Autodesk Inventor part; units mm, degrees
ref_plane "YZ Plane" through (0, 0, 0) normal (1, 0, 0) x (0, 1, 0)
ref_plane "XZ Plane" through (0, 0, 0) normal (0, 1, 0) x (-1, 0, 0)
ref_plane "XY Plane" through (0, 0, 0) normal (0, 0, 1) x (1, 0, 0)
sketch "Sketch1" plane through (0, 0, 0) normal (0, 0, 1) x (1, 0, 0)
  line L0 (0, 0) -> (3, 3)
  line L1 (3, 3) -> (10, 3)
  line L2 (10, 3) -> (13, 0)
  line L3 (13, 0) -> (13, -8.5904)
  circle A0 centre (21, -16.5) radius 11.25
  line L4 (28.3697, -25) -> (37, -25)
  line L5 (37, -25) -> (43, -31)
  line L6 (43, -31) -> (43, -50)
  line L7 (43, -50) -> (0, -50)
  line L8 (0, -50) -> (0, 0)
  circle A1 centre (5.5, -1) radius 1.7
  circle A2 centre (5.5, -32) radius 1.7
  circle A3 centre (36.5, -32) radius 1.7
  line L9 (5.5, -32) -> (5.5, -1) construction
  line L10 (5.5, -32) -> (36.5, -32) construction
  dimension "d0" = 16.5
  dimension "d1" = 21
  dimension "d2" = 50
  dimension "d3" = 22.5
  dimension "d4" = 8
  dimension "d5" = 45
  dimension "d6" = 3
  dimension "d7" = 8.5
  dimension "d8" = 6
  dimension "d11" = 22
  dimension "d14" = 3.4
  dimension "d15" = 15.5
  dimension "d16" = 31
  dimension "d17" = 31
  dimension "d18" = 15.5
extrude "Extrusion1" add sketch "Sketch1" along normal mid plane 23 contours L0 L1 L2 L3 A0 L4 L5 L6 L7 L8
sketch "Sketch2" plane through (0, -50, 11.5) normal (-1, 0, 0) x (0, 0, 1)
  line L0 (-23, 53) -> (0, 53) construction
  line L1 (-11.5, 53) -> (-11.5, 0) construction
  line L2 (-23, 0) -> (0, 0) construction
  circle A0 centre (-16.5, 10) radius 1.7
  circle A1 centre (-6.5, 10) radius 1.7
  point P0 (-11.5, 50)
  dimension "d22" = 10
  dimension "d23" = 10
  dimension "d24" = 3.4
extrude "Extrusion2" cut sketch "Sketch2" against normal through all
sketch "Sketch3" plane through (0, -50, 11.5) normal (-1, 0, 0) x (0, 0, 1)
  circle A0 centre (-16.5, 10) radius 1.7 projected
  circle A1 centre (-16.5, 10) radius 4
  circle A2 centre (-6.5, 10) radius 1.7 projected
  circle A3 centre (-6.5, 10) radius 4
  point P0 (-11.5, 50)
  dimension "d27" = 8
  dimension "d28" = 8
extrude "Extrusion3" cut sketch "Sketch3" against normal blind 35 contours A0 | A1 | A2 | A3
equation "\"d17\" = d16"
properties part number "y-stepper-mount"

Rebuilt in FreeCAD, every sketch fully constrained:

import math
import FreeCAD as App
import Part
import Sketcher

doc = App.newDocument("Part")
body = doc.addObject("PartDesign::Body", "Body")

sketch1 = body.newObject("Sketcher::SketchObject", "Sketch")
sketch1.AttachmentSupport = (doc.getObject("XY_Plane"), [""])
sketch1.MapMode = "FlatFace"
sketch1.addGeometry(Part.LineSegment(App.Vector(3, 3, 0), App.Vector(0, 0, 0)), False)
sketch1.addGeometry(Part.LineSegment(App.Vector(0, 0, 0), App.Vector(0, -50, 0)), False)
sketch1.addGeometry(Part.LineSegment(App.Vector(0, -50, 0), App.Vector(43, -50, 0)), False)
sketch1.addGeometry(Part.LineSegment(App.Vector(43, -50, 0), App.Vector(43, -31, 0)), False)
sketch1.addGeometry(Part.LineSegment(App.Vector(43, -31, 0), App.Vector(37, -25, 0)), False)
sketch1.addGeometry(Part.LineSegment(App.Vector(37, -25, 0), App.Vector(28.4, -25, 0)), False)
sketch1.addGeometry(Part.ArcOfCircle(Part.Circle(App.Vector(21, -16.5, 0), App.Vector(0, 0, 1), 11.2), math.radians(135), math.radians(311)), False)
sketch1.addGeometry(Part.LineSegment(App.Vector(13, -8.6, 0), App.Vector(13, 0, 0)), False)
sketch1.addGeometry(Part.LineSegment(App.Vector(13, 0, 0), App.Vector(10, 3, 0)), False)
sketch1.addGeometry(Part.LineSegment(App.Vector(10, 3, 0), App.Vector(3, 3, 0)), False)
sketch1.addGeometry(Part.Circle(App.Vector(5.5, -32, 0), App.Vector(0, 0, 1), 1.7), False)
sketch1.addGeometry(Part.Circle(App.Vector(36.5, -32, 0), App.Vector(0, 0, 1), 1.7), False)
sketch1.addGeometry(Part.Circle(App.Vector(5.5, -1, 0), App.Vector(0, 0, 1), 1.7), False)
sketch1.addConstraint(Sketcher.Constraint("Coincident", 0, 2, 1, 1))
sketch1.addConstraint(Sketcher.Constraint("Coincident", 1, 2, 2, 1))
sketch1.addConstraint(Sketcher.Constraint("Coincident", 2, 2, 3, 1))
sketch1.addConstraint(Sketcher.Constraint("Coincident", 3, 2, 4, 1))
sketch1.addConstraint(Sketcher.Constraint("Coincident", 4, 2, 5, 1))
sketch1.addConstraint(Sketcher.Constraint("Coincident", 5, 2, 6, 2))
sketch1.addConstraint(Sketcher.Constraint("Coincident", 6, 1, 7, 1))
sketch1.addConstraint(Sketcher.Constraint("Coincident", 7, 2, 8, 1))
sketch1.addConstraint(Sketcher.Constraint("Coincident", 8, 2, 9, 1))
sketch1.addConstraint(Sketcher.Constraint("Coincident", 9, 2, 0, 1))
sketch1.addConstraint(Sketcher.Constraint("Vertical", 1))
sketch1.addConstraint(Sketcher.Constraint("Horizontal", 2))
sketch1.addConstraint(Sketcher.Constraint("Vertical", 3))
sketch1.addConstraint(Sketcher.Constraint("Horizontal", 5))
sketch1.addConstraint(Sketcher.Constraint("Vertical", 7))
sketch1.addConstraint(Sketcher.Constraint("Horizontal", 9))
sketch1.addConstraint(Sketcher.Constraint("Coincident", 0, 2, -1, 1))
sketch1.addConstraint(Sketcher.Constraint("Equal", 10, 11))
sketch1.addConstraint(Sketcher.Constraint("Equal", 11, 12))
sketch1.addConstraint(Sketcher.Constraint("PointOnObject", 7, 2, -1))
sketch1.addConstraint(Sketcher.Constraint("Perpendicular", 0, 4))
sketch1.addConstraint(Sketcher.Constraint("Parallel", 4, 8))
sketch1.addConstraint(Sketcher.Constraint("Horizontal", 10, 3, 11, 3))
sketch1.addConstraint(Sketcher.Constraint("Vertical", 10, 3, 12, 3))
sketch1.addConstraint(Sketcher.Constraint("Equal", 0, 8))
sketch1.addConstraint(Sketcher.Constraint("Diameter", 10, 3.4))
sketch1.addConstraint(Sketcher.Constraint("DistanceY", 1, 2, 1, 1, 50.0))
sketch1.addConstraint(Sketcher.Constraint("Radius", 6, 11.25))
sketch1.addConstraint(Sketcher.Constraint("DistanceX", -1, 1, 6, 3, 21.0))
sketch1.addConstraint(Sketcher.Constraint("DistanceY", 3, 2, -1, 1, 31.0))
sketch1.addConstraint(Sketcher.Constraint("DistanceY", -1, 1, 8, 2, 3.0))
sketch1.addConstraint(Sketcher.Constraint("DistanceX", 10, 3, 11, 3, 31.0))
sketch1.addConstraint(Sketcher.Constraint("DistanceY", 10, 3, 12, 3, 31.0))
sketch1.addConstraint(Sketcher.Constraint("DistanceX", 6, 3, 2, 2, 22.0))
sketch1.addConstraint(Sketcher.Constraint("DistanceX", 4, 2, 3, 2, 6.0))
sketch1.addConstraint(Sketcher.Constraint("DistanceX", 6, 1, 6, 3, 8.0))
sketch1.addConstraint(Sketcher.Constraint("DistanceY", 6, 3, -1, 1, 16.5))
sketch1.addConstraint(Sketcher.Constraint("DistanceX", 10, 3, 6, 3, 15.5))
sketch1.addConstraint(Sketcher.Constraint("DistanceY", 10, 3, 6, 3, 15.5))
pad1 = body.newObject("PartDesign::Pad", "Pad")
pad1.Profile = sketch1
pad1.Length = 23
pad1.Midplane = True

sketch2 = body.newObject("Sketcher::SketchObject", "Sketch001")
sketch2.AttachmentSupport = (doc.getObject("YZ_Plane"), [""])
sketch2.MapMode = "FlatFace"
sketch2.addGeometry(Part.Circle(App.Vector(-40, -5, 0), App.Vector(0, 0, 1), 1.7), False)
sketch2.addGeometry(Part.Circle(App.Vector(-40, 5, 0), App.Vector(0, 0, 1), 1.7), False)
sketch2.addConstraint(Sketcher.Constraint("Equal", 0, 1))
sketch2.addConstraint(Sketcher.Constraint("Symmetric", 0, 3, 1, 3, -1))
sketch2.addConstraint(Sketcher.Constraint("Diameter", 0, 3.4))
sketch2.addConstraint(Sketcher.Constraint("DistanceY", 0, 3, 1, 3, 10.0))
sketch2.addConstraint(Sketcher.Constraint("DistanceX", 0, 3, -1, 1, 40.0))
pocket1 = body.newObject("PartDesign::Pocket", "Pocket")
pocket1.Profile = sketch2
pocket1.Type = "ThroughAll"
pocket1.Reversed = True

sketch3 = body.newObject("Sketcher::SketchObject", "Sketch002")
sketch3.AttachmentSupport = (doc.getObject("YZ_Plane"), [""])
sketch3.MapMode = "FlatFace"
sketch3.addGeometry(Part.Circle(App.Vector(-40, -5, 0), App.Vector(0, 0, 1), 4), False)
sketch3.addGeometry(Part.Circle(App.Vector(-40, 5, 0), App.Vector(0, 0, 1), 4), False)
sketch3.addConstraint(Sketcher.Constraint("Equal", 0, 1))
sketch3.addConstraint(Sketcher.Constraint("Symmetric", 0, 3, 1, 3, -1))
sketch3.addConstraint(Sketcher.Constraint("Diameter", 0, 8.0))
sketch3.addConstraint(Sketcher.Constraint("DistanceX", 0, 3, -1, 1, 40.0))
sketch3.addConstraint(Sketcher.Constraint("DistanceY", 0, 3, -1, 1, 5.0))
pocket2 = body.newObject("PartDesign::Pocket", "Pocket001")
pocket2.Profile = sketch3
pocket2.Length = 35
pocket2.Reversed = True

doc.recompute()
